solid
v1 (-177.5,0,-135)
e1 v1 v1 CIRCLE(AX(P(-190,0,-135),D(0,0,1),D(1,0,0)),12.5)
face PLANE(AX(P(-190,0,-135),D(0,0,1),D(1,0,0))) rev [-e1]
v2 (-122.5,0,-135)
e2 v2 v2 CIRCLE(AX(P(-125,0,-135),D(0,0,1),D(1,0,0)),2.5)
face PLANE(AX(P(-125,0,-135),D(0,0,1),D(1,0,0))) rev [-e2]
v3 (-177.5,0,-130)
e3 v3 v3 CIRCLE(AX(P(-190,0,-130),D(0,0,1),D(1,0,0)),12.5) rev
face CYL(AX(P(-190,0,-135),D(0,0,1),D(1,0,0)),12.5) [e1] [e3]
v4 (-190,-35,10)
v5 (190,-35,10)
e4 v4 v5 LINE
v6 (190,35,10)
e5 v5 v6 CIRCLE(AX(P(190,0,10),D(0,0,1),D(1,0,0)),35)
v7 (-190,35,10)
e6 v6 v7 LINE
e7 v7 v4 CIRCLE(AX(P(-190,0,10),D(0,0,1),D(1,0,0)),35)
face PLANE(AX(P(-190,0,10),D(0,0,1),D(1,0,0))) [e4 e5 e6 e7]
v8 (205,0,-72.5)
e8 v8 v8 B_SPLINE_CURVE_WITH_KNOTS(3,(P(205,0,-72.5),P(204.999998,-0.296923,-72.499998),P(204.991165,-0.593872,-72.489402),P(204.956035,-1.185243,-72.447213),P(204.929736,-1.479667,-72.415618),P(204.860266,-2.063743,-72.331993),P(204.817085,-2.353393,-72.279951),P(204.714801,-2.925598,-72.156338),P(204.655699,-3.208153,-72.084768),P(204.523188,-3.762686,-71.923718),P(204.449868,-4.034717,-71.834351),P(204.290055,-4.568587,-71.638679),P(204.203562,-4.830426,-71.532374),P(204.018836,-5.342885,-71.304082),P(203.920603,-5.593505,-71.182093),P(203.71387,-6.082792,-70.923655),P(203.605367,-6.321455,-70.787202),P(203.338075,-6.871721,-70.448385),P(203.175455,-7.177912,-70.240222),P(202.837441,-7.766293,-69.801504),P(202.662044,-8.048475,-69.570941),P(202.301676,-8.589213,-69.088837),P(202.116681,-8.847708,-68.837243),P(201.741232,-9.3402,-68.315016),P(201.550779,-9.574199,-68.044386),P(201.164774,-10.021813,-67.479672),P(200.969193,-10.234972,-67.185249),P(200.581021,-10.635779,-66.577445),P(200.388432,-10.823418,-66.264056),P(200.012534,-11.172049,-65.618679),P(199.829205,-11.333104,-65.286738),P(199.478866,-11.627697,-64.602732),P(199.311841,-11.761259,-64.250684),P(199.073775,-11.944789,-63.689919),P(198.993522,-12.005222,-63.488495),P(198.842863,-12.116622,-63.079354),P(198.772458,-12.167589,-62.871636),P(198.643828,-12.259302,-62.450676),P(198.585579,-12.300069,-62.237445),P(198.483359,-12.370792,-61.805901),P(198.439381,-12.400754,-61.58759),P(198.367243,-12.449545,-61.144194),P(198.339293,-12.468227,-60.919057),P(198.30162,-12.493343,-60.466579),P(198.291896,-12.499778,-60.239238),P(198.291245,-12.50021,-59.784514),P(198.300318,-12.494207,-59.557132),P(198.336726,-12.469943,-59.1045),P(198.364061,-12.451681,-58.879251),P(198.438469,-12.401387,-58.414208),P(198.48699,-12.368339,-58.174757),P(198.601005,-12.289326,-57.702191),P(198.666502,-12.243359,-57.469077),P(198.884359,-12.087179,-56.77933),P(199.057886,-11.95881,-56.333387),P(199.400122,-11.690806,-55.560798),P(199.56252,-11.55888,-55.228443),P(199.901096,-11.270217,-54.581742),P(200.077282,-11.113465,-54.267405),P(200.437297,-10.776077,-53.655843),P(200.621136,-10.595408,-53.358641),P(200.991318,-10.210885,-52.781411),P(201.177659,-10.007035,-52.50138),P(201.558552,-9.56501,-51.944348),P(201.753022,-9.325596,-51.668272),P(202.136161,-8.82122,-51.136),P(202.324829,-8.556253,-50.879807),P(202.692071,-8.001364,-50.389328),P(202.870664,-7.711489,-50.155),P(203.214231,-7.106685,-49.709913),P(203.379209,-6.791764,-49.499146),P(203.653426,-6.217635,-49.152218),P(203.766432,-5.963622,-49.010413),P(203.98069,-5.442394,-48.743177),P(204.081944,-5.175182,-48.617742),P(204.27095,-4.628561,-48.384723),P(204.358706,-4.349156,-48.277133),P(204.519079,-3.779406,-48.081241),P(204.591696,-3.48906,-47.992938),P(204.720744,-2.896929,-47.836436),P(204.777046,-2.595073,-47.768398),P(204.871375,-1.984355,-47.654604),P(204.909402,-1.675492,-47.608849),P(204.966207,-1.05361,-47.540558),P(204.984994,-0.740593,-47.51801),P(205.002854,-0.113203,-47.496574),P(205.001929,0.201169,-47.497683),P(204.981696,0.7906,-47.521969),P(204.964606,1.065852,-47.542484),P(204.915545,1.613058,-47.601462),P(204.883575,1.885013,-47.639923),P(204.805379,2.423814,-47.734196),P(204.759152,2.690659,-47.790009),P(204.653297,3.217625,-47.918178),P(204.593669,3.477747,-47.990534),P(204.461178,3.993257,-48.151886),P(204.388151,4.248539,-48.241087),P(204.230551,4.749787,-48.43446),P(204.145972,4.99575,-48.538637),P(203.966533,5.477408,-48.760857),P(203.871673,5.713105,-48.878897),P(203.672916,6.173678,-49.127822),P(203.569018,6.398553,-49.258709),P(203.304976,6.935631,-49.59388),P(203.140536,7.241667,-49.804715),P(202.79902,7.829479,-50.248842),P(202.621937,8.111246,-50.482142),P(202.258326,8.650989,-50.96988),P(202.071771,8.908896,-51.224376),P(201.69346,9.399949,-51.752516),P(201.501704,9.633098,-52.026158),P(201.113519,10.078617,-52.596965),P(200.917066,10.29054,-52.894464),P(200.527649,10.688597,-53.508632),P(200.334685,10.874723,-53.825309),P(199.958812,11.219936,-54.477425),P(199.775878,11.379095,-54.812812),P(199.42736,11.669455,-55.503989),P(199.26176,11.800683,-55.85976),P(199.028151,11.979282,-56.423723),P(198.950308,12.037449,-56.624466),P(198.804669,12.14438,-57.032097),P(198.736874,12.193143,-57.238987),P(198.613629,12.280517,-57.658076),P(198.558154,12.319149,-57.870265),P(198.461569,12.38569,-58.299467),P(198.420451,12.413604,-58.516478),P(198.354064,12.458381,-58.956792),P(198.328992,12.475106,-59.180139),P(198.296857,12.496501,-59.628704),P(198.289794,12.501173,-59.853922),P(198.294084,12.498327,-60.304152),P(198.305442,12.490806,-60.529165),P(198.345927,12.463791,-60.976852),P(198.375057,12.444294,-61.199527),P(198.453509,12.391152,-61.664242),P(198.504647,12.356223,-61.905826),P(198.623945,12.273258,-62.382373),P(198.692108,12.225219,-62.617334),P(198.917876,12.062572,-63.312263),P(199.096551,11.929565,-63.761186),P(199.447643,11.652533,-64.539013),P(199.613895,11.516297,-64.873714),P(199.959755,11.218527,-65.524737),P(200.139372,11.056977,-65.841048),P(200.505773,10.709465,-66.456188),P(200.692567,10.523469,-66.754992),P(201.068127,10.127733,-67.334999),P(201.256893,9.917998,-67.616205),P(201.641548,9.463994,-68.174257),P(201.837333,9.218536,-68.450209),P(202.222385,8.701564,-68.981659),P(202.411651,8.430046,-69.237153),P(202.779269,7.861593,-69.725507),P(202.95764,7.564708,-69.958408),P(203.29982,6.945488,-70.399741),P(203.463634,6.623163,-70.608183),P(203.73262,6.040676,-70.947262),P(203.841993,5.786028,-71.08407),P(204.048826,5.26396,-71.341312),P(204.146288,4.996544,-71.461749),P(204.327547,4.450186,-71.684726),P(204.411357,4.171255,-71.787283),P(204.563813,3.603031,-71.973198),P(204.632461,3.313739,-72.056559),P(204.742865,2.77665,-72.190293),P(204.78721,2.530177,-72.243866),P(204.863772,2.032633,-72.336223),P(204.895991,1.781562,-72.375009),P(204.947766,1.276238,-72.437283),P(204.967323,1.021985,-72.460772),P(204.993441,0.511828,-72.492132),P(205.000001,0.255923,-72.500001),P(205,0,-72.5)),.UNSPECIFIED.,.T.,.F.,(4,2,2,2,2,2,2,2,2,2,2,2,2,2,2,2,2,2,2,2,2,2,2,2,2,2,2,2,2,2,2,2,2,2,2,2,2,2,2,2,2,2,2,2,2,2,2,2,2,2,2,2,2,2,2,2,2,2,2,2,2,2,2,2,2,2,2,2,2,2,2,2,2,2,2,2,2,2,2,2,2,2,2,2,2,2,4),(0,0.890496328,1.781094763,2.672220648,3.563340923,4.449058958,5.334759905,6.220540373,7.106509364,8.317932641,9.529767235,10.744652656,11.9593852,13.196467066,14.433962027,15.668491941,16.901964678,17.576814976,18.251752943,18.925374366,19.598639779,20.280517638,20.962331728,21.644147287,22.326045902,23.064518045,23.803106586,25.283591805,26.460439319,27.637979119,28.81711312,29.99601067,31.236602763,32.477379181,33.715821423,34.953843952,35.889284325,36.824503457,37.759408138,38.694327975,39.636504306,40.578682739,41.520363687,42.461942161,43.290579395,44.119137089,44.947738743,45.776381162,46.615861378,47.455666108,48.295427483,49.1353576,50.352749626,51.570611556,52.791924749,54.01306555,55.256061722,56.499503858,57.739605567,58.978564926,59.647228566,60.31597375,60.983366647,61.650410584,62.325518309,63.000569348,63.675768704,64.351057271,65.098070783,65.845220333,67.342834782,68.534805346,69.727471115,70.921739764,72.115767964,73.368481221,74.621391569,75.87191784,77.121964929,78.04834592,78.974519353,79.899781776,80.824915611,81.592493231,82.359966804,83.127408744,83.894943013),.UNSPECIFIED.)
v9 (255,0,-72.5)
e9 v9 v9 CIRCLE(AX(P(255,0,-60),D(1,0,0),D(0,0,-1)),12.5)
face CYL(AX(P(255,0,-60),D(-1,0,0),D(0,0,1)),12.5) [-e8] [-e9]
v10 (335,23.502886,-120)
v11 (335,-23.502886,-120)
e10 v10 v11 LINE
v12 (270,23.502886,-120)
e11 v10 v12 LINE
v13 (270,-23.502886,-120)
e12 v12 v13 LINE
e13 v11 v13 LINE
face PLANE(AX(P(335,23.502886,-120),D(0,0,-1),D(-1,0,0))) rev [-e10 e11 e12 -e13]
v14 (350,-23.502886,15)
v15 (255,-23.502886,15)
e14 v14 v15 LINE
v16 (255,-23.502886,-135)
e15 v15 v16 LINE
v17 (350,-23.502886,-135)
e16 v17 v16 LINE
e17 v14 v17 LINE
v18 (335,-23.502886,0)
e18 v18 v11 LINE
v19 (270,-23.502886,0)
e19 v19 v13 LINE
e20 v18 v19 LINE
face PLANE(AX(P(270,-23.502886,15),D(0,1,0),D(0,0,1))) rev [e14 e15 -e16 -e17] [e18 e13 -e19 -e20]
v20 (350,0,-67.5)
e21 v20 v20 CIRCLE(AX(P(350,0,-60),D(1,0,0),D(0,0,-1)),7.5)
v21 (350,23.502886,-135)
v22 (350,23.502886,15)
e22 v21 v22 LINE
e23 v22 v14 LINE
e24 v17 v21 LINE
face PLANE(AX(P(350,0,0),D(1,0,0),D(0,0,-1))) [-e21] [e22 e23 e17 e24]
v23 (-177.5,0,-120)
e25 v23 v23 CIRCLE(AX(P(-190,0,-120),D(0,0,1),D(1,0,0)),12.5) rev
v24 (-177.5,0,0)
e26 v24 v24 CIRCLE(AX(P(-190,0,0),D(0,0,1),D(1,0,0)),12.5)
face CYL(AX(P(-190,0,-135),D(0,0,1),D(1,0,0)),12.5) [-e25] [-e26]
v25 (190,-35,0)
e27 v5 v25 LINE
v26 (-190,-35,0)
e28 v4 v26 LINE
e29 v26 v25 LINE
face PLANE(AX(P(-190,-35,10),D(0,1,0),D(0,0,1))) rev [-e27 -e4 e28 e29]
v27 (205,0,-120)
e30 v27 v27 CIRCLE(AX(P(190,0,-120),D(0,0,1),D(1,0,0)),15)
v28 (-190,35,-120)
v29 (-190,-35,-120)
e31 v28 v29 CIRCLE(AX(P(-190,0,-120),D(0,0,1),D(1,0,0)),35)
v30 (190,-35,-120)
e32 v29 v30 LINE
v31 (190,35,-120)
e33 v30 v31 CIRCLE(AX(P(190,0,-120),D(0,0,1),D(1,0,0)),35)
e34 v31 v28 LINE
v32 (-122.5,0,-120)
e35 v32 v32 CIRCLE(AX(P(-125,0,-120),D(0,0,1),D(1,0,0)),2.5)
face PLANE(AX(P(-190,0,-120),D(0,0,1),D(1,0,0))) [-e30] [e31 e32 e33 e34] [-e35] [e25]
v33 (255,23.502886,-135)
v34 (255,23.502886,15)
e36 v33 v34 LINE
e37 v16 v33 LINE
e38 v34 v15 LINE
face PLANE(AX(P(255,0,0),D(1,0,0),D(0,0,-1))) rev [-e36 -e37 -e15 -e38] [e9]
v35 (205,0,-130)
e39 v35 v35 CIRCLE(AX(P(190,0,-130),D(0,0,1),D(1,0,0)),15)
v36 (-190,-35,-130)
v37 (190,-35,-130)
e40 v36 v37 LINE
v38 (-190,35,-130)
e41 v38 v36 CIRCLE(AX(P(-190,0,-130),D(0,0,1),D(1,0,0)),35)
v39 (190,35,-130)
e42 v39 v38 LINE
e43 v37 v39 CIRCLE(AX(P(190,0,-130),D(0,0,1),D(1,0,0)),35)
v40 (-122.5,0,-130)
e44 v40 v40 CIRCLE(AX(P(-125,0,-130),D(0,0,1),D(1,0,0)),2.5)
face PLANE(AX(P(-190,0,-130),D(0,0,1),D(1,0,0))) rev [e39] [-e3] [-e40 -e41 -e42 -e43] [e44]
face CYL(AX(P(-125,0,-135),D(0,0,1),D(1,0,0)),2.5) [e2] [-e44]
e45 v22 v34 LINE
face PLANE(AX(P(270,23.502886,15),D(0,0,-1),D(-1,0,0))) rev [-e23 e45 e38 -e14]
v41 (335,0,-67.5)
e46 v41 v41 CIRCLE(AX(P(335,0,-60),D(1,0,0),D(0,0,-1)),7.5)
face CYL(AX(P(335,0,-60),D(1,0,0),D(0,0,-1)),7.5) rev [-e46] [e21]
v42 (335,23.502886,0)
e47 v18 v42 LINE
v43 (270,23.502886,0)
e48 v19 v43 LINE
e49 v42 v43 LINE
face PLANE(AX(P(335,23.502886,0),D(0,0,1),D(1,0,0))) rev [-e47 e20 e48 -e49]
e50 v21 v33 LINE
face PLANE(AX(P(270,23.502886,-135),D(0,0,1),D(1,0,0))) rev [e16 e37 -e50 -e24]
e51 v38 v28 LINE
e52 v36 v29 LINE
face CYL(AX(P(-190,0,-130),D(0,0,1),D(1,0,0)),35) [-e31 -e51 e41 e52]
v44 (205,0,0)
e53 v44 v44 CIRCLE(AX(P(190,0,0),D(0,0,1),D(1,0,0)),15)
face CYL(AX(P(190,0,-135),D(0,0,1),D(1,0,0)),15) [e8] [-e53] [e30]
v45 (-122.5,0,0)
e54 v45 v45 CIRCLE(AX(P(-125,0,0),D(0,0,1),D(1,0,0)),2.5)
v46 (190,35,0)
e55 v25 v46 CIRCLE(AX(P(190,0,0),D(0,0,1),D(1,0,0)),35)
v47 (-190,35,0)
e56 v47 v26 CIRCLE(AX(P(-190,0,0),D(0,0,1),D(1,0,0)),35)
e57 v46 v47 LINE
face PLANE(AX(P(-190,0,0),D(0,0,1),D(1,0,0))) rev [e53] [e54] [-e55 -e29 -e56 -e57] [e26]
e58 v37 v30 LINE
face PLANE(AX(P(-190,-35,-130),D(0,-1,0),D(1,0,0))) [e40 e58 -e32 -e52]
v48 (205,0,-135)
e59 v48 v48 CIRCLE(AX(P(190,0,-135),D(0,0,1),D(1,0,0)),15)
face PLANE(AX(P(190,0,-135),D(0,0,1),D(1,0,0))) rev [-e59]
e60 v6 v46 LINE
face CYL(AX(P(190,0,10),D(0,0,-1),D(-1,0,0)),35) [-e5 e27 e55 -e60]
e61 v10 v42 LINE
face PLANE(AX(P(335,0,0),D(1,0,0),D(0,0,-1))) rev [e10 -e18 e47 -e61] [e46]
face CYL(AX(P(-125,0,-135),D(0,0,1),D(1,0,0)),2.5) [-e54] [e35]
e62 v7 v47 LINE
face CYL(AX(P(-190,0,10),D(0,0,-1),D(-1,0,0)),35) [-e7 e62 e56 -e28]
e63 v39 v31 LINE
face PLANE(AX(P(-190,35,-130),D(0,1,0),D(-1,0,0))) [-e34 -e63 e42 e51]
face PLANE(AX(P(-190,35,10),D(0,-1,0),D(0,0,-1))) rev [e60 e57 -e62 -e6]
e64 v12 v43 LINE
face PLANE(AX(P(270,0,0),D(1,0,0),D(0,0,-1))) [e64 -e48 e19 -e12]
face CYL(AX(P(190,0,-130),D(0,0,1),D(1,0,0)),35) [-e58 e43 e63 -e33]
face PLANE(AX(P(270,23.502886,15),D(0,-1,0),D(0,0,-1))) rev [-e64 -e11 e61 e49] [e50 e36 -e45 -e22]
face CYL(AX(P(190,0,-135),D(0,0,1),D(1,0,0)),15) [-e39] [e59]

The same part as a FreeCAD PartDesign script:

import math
import FreeCAD as App
import Part
import Sketcher
from FreeCAD import Vector


def add_polygon(sketch, points):
    """Adds a closed chain of lines whose ends are joined by coincident constraints."""
    first, n = sketch.GeometryCount, len(points)
    for a, b in zip(points, points[1:] + points[:1]):
        sketch.addGeometry(Part.LineSegment(App.Vector(*a, 0), App.Vector(*b, 0)), False)
    for i in range(n):
        sketch.addConstraint(Sketcher.Constraint("Coincident", first + i, 2, first + (i + 1) % n, 1))

doc = App.newDocument("Part")
body = doc.addObject("PartDesign::Body", "Body")

sketch1 = body.newObject("Sketcher::SketchObject", "Sketch")
sketch1.AttachmentSupport = (doc.getObject("XY_Plane"), [""])
sketch1.MapMode = "FlatFace"
sketch1.addGeometry(Part.LineSegment(Vector(190, 35, 0), Vector(-190, 35, 0)), False)
sketch1.addGeometry(Part.ArcOfCircle(Part.Circle(Vector(-190, 0, 0), Vector(0, 0, 1), 35), math.radians(90), math.radians(270)), False)
sketch1.addGeometry(Part.LineSegment(Vector(-190, -35, 0), Vector(190, -35, 0)), False)
sketch1.addGeometry(Part.ArcOfCircle(Part.Circle(Vector(190, 0, 0), Vector(0, 0, 1), 35), math.radians(-90), math.radians(90)), False)
sketch1.addConstraint(Sketcher.Constraint("Tangent", 0, 2, 1, 1))
sketch1.addConstraint(Sketcher.Constraint("Tangent", 1, 2, 2, 1))
sketch1.addConstraint(Sketcher.Constraint("Tangent", 2, 2, 3, 1))
sketch1.addConstraint(Sketcher.Constraint("Tangent", 3, 2, 0, 1))
sketch1.addConstraint(Sketcher.Constraint("Horizontal", 0))
sketch1.addConstraint(Sketcher.Constraint("Horizontal", 2))
sketch1.addConstraint(Sketcher.Constraint("Symmetric", 1, 3, 3, 3, -1, 1))
sketch1.addConstraint(Sketcher.Constraint("Radius", 1, 35.0))
sketch1.addConstraint(Sketcher.Constraint("DistanceX", 0, 2, 0, 1, 380.0))
pad1 = body.newObject("PartDesign::Pad", "Pad")
pad1.Profile = sketch1
pad1.Length = 10
body2 = doc.addObject("PartDesign::Body", "Body001")

sketch2 = body2.newObject("Sketcher::SketchObject", "Sketch001")
sketch2.AttachmentSupport = (doc.getObject("XY_Plane001"), [""])
sketch2.MapMode = "FlatFace"
sketch2.AttachmentOffset = App.Placement(Vector(0, 0, -120), App.Rotation())
sketch2.addGeometry(Part.LineSegment(Vector(190, 35, 0), Vector(-190, 35, 0)), False)
sketch2.addGeometry(Part.ArcOfCircle(Part.Circle(Vector(-190, 0, 0), Vector(0, 0, 1), 35), math.radians(90), math.radians(270)), False)
sketch2.addGeometry(Part.LineSegment(Vector(-190, -35, 0), Vector(190, -35, 0)), False)
sketch2.addGeometry(Part.ArcOfCircle(Part.Circle(Vector(190, 0, 0), Vector(0, 0, 1), 35), math.radians(-90), math.radians(90)), False)
sketch2.addConstraint(Sketcher.Constraint("Tangent", 0, 2, 1, 1))
sketch2.addConstraint(Sketcher.Constraint("Tangent", 1, 2, 2, 1))
sketch2.addConstraint(Sketcher.Constraint("Tangent", 2, 2, 3, 1))
sketch2.addConstraint(Sketcher.Constraint("Tangent", 3, 2, 0, 1))
sketch2.addConstraint(Sketcher.Constraint("Horizontal", 0))
sketch2.addConstraint(Sketcher.Constraint("Horizontal", 2))
sketch2.addConstraint(Sketcher.Constraint("Symmetric", 1, 3, 3, 3, -1, 1))
sketch2.addConstraint(Sketcher.Constraint("Radius", 1, 35.0))
sketch2.addConstraint(Sketcher.Constraint("DistanceX", 0, 2, 0, 1, 380.0))
pad2 = body2.newObject("PartDesign::Pad", "Pad001")
pad2.Profile = sketch2
pad2.Length = 10
pad2.Reversed = True
body.AllowCompound = True
doc.recompute()

boolean = body.newObject("PartDesign::Boolean", "Boolean")
boolean.Type = "Fuse"
boolean.addObjects([body2])

sketch3 = body.newObject("Sketcher::SketchObject", "Sketch002")
sketch3.AttachmentSupport = (doc.getObject("XY_Plane"), [""])
sketch3.MapMode = "FlatFace"
sketch3.AttachmentOffset = App.Placement(Vector(0, 0, 10), App.Rotation())
sketch3.addGeometry(Part.Circle(Vector(-190, 0, 0), Vector(0, 0, 1), 12.5), False)
sketch3.addConstraint(Sketcher.Constraint("PointOnObject", 0, 3, -1))
sketch3.addConstraint(Sketcher.Constraint("Diameter", 0, 25.0))
sketch3.addConstraint(Sketcher.Constraint("DistanceX", 0, 3, -1, 1, 190.0))
pad3 = body.newObject("PartDesign::Pad", "Pad002")
pad3.Profile = sketch3
pad3.Length = 145
pad3.Reversed = True

sketch4 = body.newObject("Sketcher::SketchObject", "Sketch003")
sketch4.AttachmentSupport = (doc.getObject("XY_Plane"), [""])
sketch4.MapMode = "FlatFace"
sketch4.AttachmentOffset = App.Placement(Vector(0, 0, 10), App.Rotation())
sketch4.addGeometry(Part.Circle(Vector(-125, 0, 0), Vector(0, 0, 1), 2.5), False)
sketch4.addConstraint(Sketcher.Constraint("PointOnObject", 0, 3, -1))
sketch4.addConstraint(Sketcher.Constraint("Diameter", 0, 5.0))
sketch4.addConstraint(Sketcher.Constraint("DistanceX", 0, 3, -1, 1, 125.0))
pad4 = body.newObject("PartDesign::Pad", "Pad003")
pad4.Profile = sketch4
pad4.Length = 145
pad4.Reversed = True

sketch5 = body.newObject("Sketcher::SketchObject", "Sketch004")
sketch5.AttachmentSupport = (doc.getObject("XY_Plane"), [""])
sketch5.MapMode = "FlatFace"
sketch5.AttachmentOffset = App.Placement(Vector(0, 0, 10), App.Rotation())
sketch5.addGeometry(Part.Circle(Vector(190, 0, 0), Vector(0, 0, 1), 15), False)
sketch5.addConstraint(Sketcher.Constraint("PointOnObject", 0, 3, -1))
sketch5.addConstraint(Sketcher.Constraint("Diameter", 0, 30.0))
sketch5.addConstraint(Sketcher.Constraint("DistanceX", -1, 1, 0, 3, 190.0))
pad5 = body.newObject("PartDesign::Pad", "Pad004")
pad5.Profile = sketch5
pad5.Length = 145
pad5.Reversed = True

sketch6 = body.newObject("Sketcher::SketchObject", "Sketch005")
sketch6.AttachmentSupport = (doc.getObject("YZ_Plane"), [""])
sketch6.MapMode = "FlatFace"
sketch6.AttachmentOffset = App.Placement(Vector(0, 0, 190), App.Rotation())
sketch6.addGeometry(Part.Circle(Vector(0, -60, 0), Vector(0, 0, 1), 12.5), False)
sketch6.addConstraint(Sketcher.Constraint("PointOnObject", 0, 3, -2))
sketch6.addConstraint(Sketcher.Constraint("Diameter", 0, 25.0))
sketch6.addConstraint(Sketcher.Constraint("DistanceY", 0, 3, -1, 1, 60.0))
pad6 = body.newObject("PartDesign::Pad", "Pad005")
pad6.Profile = sketch6
pad6.Length = 65

sketch7 = body.newObject("Sketcher::SketchObject", "Sketch006")
sketch7.AttachmentSupport = (doc.getObject("YZ_Plane"), [""])
sketch7.MapMode = "FlatFace"
sketch7.AttachmentOffset = App.Placement(Vector(0, 0, 255), App.Rotation())
add_polygon(sketch7, [(23.502886, 15), (-23.502886, 15), (-23.502886, -135), (23.502886, -135)])
sketch7.addConstraint(Sketcher.Constraint("Horizontal", 0))
sketch7.addConstraint(Sketcher.Constraint("Vertical", 1))
sketch7.addConstraint(Sketcher.Constraint("Horizontal", 2))
sketch7.addConstraint(Sketcher.Constraint("Vertical", 3))
sketch7.addConstraint(Sketcher.Constraint("DistanceY", 1, 2, 1, 1, 150.0))
sketch7.addConstraint(Sketcher.Constraint("DistanceY", -1, 1, 0, 2, 15.0))
sketch7.addConstraint(Sketcher.Constraint("DistanceX", 0, 2, 0, 1, 47.005772))
sketch7.addConstraint(Sketcher.Constraint("DistanceX", 0, 2, -1, 1, 23.502886))
pad7 = body.newObject("PartDesign::Pad", "Pad006")
pad7.Profile = sketch7
pad7.Length = 15

sketch8 = body.newObject("Sketcher::SketchObject", "Sketch007")
sketch8.AttachmentSupport = (doc.getObject("YZ_Plane"), [""])
sketch8.MapMode = "FlatFace"
sketch8.AttachmentOffset = App.Placement(Vector(0, 0, 270), App.Rotation())
add_polygon(sketch8, [(23.502886, 15), (-23.502886, 15), (-23.502886, 0), (23.502886, 0)])
add_polygon(sketch8, [(23.502886, -120), (-23.502886, -120), (-23.502886, -135), (23.502886, -135)])
sketch8.addConstraint(Sketcher.Constraint("Horizontal", 0))
sketch8.addConstraint(Sketcher.Constraint("Vertical", 1))
sketch8.addConstraint(Sketcher.Constraint("Horizontal", 2))
sketch8.addConstraint(Sketcher.Constraint("Vertical", 3))
sketch8.addConstraint(Sketcher.Constraint("Horizontal", 4))
sketch8.addConstraint(Sketcher.Constraint("Vertical", 5))
sketch8.addConstraint(Sketcher.Constraint("Horizontal", 6))
sketch8.addConstraint(Sketcher.Constraint("Vertical", 7))
sketch8.addConstraint(Sketcher.Constraint("Symmetric", 1, 2, 2, 2, -1, 1))
sketch8.addConstraint(Sketcher.Constraint("Vertical", 1, 2, 4, 2))
sketch8.addConstraint(Sketcher.Constraint("Vertical", 3, 2, 6, 2))
sketch8.addConstraint(Sketcher.Constraint("Equal", 3, 5))
sketch8.addConstraint(Sketcher.Constraint("DistanceY", 1, 2, 1, 1, 15.0))
sketch8.addConstraint(Sketcher.Constraint("DistanceY", 4, 2, -1, 1, 120.0))
sketch8.addConstraint(Sketcher.Constraint("DistanceX", 0, 2, 0, 1, 47.005772))
pad8 = body.newObject("PartDesign::Pad", "Pad007")
pad8.Profile = sketch8
pad8.Length = 65

sketch9 = body.newObject("Sketcher::SketchObject", "Sketch008")
sketch9.AttachmentSupport = (doc.getObject("YZ_Plane"), [""])
sketch9.MapMode = "FlatFace"
sketch9.AttachmentOffset = App.Placement(Vector(0, 0, 335), App.Rotation())
add_polygon(sketch9, [(23.502886, 15), (-23.502886, 15), (-23.502886, -135), (23.502886, -135)])
sketch9.addConstraint(Sketcher.Constraint("Horizontal", 0))
sketch9.addConstraint(Sketcher.Constraint("Vertical", 1))
sketch9.addConstraint(Sketcher.Constraint("Horizontal", 2))
sketch9.addConstraint(Sketcher.Constraint("Vertical", 3))
sketch9.addConstraint(Sketcher.Constraint("DistanceY", 1, 2, 1, 1, 150.0))
sketch9.addConstraint(Sketcher.Constraint("DistanceY", -1, 1, 0, 2, 15.0))
sketch9.addConstraint(Sketcher.Constraint("DistanceX", 0, 2, 0, 1, 47.005772))
sketch9.addConstraint(Sketcher.Constraint("DistanceX", 0, 2, -1, 1, 23.502886))
pad9 = body.newObject("PartDesign::Pad", "Pad008")
pad9.Profile = sketch9
pad9.Length = 15

sketch10 = body.newObject("Sketcher::SketchObject", "Sketch009")
sketch10.AttachmentSupport = (doc.getObject("YZ_Plane"), [""])
sketch10.MapMode = "FlatFace"
sketch10.AttachmentOffset = App.Placement(Vector(0, 0, 350), App.Rotation())
sketch10.addGeometry(Part.Circle(Vector(0, -60, 0), Vector(0, 0, 1), 7.5), False)
sketch10.addConstraint(Sketcher.Constraint("PointOnObject", 0, 3, -2))
sketch10.addConstraint(Sketcher.Constraint("Diameter", 0, 15.0))
sketch10.addConstraint(Sketcher.Constraint("DistanceY", 0, 3, -1, 1, 60.0))
pocket1 = body.newObject("PartDesign::Pocket", "Pocket")
pocket1.Profile = sketch10
pocket1.Length = 15

doc.recompute()
